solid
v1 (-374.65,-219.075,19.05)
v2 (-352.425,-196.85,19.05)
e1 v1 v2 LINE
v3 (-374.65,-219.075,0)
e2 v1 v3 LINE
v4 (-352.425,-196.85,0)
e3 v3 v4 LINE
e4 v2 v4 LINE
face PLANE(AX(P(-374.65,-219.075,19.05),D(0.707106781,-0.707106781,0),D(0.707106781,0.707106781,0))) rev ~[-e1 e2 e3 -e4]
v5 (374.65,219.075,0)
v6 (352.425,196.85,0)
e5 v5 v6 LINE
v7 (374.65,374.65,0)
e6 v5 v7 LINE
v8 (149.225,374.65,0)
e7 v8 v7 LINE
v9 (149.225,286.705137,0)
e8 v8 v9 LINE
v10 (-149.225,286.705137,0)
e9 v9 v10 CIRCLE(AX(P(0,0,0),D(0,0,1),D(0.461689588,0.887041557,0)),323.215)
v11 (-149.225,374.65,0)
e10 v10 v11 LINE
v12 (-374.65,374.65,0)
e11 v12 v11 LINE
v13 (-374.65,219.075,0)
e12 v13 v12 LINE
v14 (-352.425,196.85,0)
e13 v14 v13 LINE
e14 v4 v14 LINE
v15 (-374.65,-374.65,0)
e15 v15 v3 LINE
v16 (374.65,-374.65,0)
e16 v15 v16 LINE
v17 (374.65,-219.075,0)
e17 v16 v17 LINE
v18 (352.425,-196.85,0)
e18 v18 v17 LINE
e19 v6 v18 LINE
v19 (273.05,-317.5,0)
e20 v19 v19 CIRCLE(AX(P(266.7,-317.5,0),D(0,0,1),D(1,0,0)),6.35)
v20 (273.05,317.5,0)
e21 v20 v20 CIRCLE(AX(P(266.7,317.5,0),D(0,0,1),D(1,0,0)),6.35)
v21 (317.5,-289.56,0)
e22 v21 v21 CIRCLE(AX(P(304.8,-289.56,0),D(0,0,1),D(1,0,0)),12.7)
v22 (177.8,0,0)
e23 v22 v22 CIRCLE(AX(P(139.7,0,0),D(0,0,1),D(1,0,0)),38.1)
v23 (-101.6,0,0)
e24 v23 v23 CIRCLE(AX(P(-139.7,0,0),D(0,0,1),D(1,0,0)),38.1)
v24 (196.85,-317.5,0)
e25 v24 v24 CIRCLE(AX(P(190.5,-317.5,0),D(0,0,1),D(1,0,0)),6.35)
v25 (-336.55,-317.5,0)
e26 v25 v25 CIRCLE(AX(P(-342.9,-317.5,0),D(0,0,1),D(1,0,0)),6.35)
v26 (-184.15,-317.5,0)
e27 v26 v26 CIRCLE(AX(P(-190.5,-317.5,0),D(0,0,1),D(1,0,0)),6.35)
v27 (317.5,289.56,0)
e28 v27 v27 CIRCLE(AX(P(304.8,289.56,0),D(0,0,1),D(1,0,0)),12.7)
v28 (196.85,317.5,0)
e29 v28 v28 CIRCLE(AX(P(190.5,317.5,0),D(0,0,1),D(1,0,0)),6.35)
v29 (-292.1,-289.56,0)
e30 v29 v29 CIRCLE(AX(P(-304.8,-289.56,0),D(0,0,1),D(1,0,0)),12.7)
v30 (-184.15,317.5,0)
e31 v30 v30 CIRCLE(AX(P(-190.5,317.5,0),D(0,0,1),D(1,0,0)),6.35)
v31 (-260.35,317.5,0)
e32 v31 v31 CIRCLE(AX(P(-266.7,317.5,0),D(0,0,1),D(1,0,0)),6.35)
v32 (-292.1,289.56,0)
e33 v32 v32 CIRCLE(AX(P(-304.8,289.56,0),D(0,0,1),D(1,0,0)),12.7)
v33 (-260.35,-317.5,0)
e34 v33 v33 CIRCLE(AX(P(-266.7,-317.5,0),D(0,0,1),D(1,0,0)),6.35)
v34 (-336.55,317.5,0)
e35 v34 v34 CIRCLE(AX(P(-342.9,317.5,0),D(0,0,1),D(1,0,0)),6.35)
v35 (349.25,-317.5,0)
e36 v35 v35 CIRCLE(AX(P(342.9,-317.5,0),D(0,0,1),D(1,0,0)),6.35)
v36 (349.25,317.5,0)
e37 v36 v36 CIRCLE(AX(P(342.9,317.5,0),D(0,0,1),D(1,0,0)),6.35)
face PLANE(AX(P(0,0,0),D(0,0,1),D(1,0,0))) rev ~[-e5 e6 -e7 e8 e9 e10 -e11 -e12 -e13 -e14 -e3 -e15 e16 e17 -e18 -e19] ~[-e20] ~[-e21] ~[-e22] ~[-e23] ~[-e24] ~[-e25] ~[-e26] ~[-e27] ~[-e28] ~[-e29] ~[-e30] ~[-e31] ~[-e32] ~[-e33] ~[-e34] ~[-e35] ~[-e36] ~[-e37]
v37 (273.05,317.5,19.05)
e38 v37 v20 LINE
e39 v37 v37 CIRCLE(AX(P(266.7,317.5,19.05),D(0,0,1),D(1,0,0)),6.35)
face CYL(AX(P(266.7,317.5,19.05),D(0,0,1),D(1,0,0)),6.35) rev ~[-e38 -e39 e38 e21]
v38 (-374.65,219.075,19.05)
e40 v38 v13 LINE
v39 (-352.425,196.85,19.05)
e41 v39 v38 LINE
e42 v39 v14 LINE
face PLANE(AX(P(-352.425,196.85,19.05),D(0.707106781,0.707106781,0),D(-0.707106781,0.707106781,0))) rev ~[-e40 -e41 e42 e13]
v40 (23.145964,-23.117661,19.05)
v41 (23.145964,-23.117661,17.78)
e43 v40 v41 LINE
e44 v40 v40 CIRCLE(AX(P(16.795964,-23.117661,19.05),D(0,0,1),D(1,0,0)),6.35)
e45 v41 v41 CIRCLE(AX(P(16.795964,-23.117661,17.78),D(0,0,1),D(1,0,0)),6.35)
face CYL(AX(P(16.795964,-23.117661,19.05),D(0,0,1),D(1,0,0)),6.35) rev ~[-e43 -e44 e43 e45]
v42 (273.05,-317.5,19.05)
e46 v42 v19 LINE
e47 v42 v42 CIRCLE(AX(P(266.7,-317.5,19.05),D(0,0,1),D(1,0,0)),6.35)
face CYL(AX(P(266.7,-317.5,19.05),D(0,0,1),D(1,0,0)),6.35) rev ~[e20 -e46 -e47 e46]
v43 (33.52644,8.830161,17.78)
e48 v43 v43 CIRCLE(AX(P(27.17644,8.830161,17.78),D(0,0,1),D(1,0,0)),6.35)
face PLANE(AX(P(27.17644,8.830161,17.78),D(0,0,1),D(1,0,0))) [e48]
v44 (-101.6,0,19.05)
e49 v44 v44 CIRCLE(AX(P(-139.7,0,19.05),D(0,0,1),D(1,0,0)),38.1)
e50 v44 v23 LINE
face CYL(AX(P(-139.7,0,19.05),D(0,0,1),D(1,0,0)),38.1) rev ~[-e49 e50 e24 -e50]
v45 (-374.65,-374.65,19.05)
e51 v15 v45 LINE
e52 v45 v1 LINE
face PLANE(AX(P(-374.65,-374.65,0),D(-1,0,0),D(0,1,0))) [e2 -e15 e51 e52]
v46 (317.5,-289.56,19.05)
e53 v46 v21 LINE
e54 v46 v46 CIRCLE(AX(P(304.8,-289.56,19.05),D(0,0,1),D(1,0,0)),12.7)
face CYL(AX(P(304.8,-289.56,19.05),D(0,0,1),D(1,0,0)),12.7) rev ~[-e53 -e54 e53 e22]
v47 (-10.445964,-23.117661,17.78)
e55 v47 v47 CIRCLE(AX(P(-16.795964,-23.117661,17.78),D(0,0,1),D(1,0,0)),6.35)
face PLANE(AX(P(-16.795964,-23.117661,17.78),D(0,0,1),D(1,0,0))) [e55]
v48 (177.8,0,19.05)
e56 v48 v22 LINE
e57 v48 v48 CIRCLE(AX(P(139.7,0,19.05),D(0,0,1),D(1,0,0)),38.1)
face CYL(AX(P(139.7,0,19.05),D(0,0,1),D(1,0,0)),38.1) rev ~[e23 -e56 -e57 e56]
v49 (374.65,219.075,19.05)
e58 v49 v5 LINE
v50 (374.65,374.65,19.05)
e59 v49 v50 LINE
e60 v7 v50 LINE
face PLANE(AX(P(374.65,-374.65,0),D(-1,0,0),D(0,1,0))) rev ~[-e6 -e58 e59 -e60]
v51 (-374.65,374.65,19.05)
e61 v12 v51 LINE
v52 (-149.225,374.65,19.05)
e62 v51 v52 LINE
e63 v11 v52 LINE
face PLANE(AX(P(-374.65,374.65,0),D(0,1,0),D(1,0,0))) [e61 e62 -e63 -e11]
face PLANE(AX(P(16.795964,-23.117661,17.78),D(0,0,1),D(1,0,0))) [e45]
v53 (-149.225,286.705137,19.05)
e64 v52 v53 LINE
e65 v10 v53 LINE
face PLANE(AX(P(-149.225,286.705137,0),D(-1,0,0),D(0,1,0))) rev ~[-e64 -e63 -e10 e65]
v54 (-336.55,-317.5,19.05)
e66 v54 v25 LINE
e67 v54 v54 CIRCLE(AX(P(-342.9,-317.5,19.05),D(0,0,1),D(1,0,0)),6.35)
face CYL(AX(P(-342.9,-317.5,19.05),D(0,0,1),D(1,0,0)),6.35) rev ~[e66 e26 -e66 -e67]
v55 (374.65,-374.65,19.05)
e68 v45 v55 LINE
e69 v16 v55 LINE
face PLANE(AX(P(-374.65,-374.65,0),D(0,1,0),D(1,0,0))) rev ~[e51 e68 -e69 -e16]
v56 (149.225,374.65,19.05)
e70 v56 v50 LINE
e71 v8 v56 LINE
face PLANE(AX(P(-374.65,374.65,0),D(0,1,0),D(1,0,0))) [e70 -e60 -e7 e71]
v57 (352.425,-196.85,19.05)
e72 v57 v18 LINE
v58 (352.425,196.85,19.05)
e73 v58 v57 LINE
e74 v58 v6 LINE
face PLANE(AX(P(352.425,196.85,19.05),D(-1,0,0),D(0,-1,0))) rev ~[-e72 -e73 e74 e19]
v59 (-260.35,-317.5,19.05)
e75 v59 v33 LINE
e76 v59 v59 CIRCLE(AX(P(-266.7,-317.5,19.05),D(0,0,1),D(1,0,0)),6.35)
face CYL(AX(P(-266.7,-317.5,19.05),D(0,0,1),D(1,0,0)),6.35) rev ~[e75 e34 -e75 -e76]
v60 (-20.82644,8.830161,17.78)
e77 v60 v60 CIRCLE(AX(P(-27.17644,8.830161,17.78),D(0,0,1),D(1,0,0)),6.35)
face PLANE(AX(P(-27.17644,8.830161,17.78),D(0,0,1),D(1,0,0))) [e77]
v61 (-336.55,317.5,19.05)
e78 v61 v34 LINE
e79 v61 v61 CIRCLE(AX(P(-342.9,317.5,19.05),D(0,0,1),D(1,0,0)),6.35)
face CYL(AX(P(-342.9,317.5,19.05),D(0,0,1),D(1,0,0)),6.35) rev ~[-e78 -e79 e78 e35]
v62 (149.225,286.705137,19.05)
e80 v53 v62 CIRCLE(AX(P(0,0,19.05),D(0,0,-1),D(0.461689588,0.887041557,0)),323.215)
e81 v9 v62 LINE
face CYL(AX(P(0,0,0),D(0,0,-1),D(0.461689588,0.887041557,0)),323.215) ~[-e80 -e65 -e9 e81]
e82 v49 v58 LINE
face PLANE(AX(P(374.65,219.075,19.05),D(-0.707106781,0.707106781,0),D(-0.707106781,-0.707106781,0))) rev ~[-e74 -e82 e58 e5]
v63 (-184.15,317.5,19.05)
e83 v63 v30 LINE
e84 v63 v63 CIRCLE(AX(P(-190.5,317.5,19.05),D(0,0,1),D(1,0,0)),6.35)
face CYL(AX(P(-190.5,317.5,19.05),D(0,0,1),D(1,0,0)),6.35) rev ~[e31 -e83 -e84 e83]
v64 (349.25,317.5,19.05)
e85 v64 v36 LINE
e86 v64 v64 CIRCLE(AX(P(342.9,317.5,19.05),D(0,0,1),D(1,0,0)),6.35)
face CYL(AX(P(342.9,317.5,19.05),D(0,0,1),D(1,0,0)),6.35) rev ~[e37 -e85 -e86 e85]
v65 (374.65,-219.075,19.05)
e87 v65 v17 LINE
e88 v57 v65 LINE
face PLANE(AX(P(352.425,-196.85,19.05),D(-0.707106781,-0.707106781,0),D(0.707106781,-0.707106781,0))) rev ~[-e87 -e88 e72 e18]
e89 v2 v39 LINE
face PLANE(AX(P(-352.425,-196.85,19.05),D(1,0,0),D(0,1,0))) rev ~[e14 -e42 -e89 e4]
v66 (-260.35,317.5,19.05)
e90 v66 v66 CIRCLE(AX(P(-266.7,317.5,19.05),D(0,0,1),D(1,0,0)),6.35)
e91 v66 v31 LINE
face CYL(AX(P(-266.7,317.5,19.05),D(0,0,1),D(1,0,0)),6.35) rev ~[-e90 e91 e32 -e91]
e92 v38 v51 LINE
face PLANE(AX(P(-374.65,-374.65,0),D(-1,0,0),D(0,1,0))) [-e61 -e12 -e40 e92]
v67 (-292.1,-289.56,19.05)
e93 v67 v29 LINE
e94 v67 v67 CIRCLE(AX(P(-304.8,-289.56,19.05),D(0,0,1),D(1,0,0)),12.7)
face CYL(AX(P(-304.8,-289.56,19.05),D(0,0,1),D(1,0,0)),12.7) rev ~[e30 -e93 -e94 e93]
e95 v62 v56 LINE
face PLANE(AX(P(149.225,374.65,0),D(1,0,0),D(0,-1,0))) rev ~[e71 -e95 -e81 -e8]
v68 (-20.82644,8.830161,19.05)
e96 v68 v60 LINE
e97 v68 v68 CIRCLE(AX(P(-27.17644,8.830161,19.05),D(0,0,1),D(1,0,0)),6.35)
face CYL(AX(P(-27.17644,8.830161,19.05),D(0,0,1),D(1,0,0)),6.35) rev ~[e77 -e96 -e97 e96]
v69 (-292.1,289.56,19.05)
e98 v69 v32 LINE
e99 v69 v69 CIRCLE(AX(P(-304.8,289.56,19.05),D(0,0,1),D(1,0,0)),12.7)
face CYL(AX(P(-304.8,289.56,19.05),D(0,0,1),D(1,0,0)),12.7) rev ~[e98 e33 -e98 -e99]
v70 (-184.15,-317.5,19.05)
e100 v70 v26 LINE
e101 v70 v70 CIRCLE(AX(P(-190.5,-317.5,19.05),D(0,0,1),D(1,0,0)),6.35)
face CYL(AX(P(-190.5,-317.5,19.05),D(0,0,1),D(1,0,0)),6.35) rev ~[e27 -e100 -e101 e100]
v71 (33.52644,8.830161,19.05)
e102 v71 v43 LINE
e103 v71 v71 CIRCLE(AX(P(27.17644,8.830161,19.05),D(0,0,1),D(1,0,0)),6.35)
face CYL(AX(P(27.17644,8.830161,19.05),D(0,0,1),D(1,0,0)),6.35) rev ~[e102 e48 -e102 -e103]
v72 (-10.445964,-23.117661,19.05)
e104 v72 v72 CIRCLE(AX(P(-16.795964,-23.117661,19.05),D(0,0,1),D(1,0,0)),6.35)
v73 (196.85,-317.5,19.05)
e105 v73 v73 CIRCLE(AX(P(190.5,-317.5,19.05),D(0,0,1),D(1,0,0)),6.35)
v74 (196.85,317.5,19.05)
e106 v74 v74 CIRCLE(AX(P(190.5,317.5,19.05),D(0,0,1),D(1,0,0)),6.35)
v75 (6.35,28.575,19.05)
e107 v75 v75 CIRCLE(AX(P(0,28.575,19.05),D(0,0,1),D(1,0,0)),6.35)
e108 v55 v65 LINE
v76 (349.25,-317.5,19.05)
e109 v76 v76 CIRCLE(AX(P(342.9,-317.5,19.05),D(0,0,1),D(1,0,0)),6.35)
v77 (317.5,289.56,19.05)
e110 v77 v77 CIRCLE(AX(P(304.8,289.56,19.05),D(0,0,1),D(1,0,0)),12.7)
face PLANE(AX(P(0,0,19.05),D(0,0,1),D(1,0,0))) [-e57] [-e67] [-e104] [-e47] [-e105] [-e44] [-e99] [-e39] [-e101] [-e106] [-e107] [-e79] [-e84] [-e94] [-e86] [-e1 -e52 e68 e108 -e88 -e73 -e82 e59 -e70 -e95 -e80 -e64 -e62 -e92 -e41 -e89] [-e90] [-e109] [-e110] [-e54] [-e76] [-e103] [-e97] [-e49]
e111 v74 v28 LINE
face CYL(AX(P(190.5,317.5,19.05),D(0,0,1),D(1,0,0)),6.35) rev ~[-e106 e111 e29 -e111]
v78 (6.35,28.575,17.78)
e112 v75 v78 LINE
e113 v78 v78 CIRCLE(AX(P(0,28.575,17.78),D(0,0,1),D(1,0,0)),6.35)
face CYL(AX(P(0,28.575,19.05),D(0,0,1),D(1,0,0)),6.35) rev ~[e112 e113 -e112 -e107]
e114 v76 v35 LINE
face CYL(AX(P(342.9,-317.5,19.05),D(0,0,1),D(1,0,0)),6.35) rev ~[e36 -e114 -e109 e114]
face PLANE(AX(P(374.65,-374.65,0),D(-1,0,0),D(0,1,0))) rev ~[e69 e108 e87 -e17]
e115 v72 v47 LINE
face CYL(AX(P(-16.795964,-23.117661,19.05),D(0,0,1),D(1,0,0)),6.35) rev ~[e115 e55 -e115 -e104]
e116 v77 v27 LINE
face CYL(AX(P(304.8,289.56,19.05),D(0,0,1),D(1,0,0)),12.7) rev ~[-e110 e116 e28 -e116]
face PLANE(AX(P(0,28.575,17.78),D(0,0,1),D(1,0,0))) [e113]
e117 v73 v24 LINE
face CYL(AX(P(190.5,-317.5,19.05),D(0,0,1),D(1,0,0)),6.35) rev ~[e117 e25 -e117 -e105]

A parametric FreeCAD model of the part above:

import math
import FreeCAD as App
import Part
import Sketcher
Q = App.Units.Quantity


def add_polygon(sketch, points):
    """Adds a closed chain of lines whose ends are joined by coincident constraints."""
    first, n = sketch.GeometryCount, len(points)
    for a, b in zip(points, points[1:] + points[:1]):
        sketch.addGeometry(Part.LineSegment(App.Vector(*a, 0), App.Vector(*b, 0)), False)
    for i in range(n):
        sketch.addConstraint(Sketcher.Constraint("Coincident", first + i, 2, first + (i + 1) % n, 1))

doc = App.newDocument("Part")
body = doc.addObject("PartDesign::Body", "Body")

# Sketch on XY plane
sketch1 = doc.addObject("Sketcher::SketchObject", "Sketch")
body.addObject(sketch1)
sketch1.AttachmentSupport = (doc.XY_Plane, [""])
sketch1.MapMode = "FlatFace"
add_polygon(sketch1, [(-375, 375), (-375, -375), (375, -375), (375, 375)])  # lines 0-3
sketch1.addConstraint([
    Sketcher.Constraint("Vertical", 0),
    Sketcher.Constraint("Horizontal", 1),
    Sketcher.Constraint("Vertical", 2),
    Sketcher.Constraint("Horizontal", 3),
    Sketcher.Constraint("Symmetric", 0, 2, 2, 2, -1, 1),
    Sketcher.Constraint("Equal", 3, 0),
    Sketcher.Constraint("DistanceX", 1, 1, 1, 2, Q("29.5 in")),
])
pad1 = doc.addObject("PartDesign::Pad", "Pad")
body.addObject(pad1)
pad1.Profile = sketch1
pad1.Length = Q("0.75 in")

# Sketch on XY plane
sketch2 = doc.addObject("Sketcher::SketchObject", "Sketch001")
body.addObject(sketch2)
sketch2.AttachmentSupport = (doc.XY_Plane, [""])
sketch2.MapMode = "FlatFace"
sketch2.AttachmentOffset = App.Placement(App.Vector(0, 0, 0.75 * 25.4), App.Rotation())
add_polygon(sketch2, [(-352, 197), (-375, 219), (-375, -219), (-352, -197)])  # lines 0-3
add_polygon(sketch2, [(375, -219), (375, 219), (352, 197), (352, -197)])  # lines 4-7
sketch2.addConstraint([
    Sketcher.Constraint("Vertical", 1),
    Sketcher.Constraint("Vertical", 3),
    Sketcher.Constraint("Vertical", 4),
    Sketcher.Constraint("Vertical", 6),
    Sketcher.Constraint("Symmetric", 1, 2, 4, 2, -1, 1),
    Sketcher.Constraint("Symmetric", 2, 2, 5, 2, -1, 1),
    Sketcher.Constraint("Perpendicular", 0, 2),
    Sketcher.Constraint("Perpendicular", 5, 7),
    Sketcher.Constraint("Horizontal", 0, 2, 4, 2),
    Sketcher.Constraint("Horizontal", 3, 2, 5, 2),
    Sketcher.Constraint("Horizontal", 2, 2, 6, 2),
    Sketcher.Constraint("DistanceY", 3, 1, 3, 2, Q("15.5 in")),
    Sketcher.Constraint("DistanceY", 1, 2, 1, 1, Q("17.25 in")),
    Sketcher.Constraint("DistanceX", 0, 2, 4, 2, Q("29.5 in")),
])
pocket1 = doc.addObject("PartDesign::Pocket", "Pocket")
body.addObject(pocket1)
pocket1.Profile = sketch2
pocket1.Length = Q("4.5 in")

# Sketch on XY plane
sketch3 = doc.addObject("Sketcher::SketchObject", "Sketch002")
body.addObject(sketch3)
sketch3.AttachmentSupport = (doc.XY_Plane, [""])
sketch3.MapMode = "FlatFace"
sketch3.AttachmentOffset = App.Placement(App.Vector(0, 0, 0.75 * 25.4), App.Rotation())
sketch3.addGeometry([
    Part.Circle(App.Vector(0, 29, 0), App.Vector(0, 0, 1), 6),  # 0
    Part.Circle(App.Vector(-27, 9, 0), App.Vector(0, 0, 1), 6),  # 1
    Part.Circle(App.Vector(-17, -23, 0), App.Vector(0, 0, 1), 6),  # 2
    Part.Circle(App.Vector(17, -23, 0), App.Vector(0, 0, 1), 6),  # 3
    Part.Circle(App.Vector(27, 9, 0), App.Vector(0, 0, 1), 6),  # 4
], False)
sketch3.addConstraint([
    Sketcher.Constraint("Equal", 0, 1),
    Sketcher.Constraint("Equal", 1, 2),
    Sketcher.Constraint("Equal", 2, 3),
    Sketcher.Constraint("Equal", 3, 4),
    Sketcher.Constraint("Symmetric", 2, 3, 3, 3, -2),
    Sketcher.Constraint("Symmetric", 1, 3, 4, 3, -2),
    Sketcher.Constraint("PointOnObject", 0, 3, -2),
    Sketcher.Constraint("Diameter", 0, Q("0.5 in")),
    Sketcher.Constraint("DistanceY", -1, 1, 0, 3, Q("1.125 in")),
    Sketcher.Constraint("DistanceX", 1, 3, -1, 1, 27.17644),
    Sketcher.Constraint("DistanceY", -1, 1, 1, 3, 8.830161),
    Sketcher.Constraint("DistanceY", 2, 3, -1, 1, 23.117661),
    Sketcher.Constraint("DistanceX", 2, 3, 3, 3, 33.591928),
])
pocket2 = doc.addObject("PartDesign::Pocket", "Pocket001")
body.addObject(pocket2)
pocket2.Profile = sketch3
pocket2.Length = Q("0.05 in")

# Sketch on XY plane
sketch4 = doc.addObject("Sketcher::SketchObject", "Sketch003")
body.addObject(sketch4)
sketch4.AttachmentSupport = (doc.XY_Plane, [""])
sketch4.MapMode = "FlatFace"
sketch4.AttachmentOffset = App.Placement(App.Vector(0, 0, 0.75 * 25.4), App.Rotation())
sketch4.addGeometry([
    Part.Circle(App.Vector(190, -318, 0), App.Vector(0, 0, 1), 6),  # 0
    Part.Circle(App.Vector(267, -318, 0), App.Vector(0, 0, 1), 6),  # 1
    Part.Circle(App.Vector(343, -318, 0), App.Vector(0, 0, 1), 6),  # 2
    Part.Circle(App.Vector(305, -290, 0), App.Vector(0, 0, 1), 13),  # 3
    Part.Circle(App.Vector(305, 290, 0), App.Vector(0, 0, 1), 13),  # 4
    Part.Circle(App.Vector(343, 318, 0), App.Vector(0, 0, 1), 6),  # 5
    Part.Circle(App.Vector(267, 318, 0), App.Vector(0, 0, 1), 6),  # 6
    Part.Circle(App.Vector(190, 318, 0), App.Vector(0, 0, 1), 6),  # 7
    Part.Circle(App.Vector(-305, -290, 0), App.Vector(0, 0, 1), 13),  # 8
    Part.Circle(App.Vector(-343, -318, 0), App.Vector(0, 0, 1), 6),  # 9
    Part.Circle(App.Vector(-267, -318, 0), App.Vector(0, 0, 1), 6),  # 10
    Part.Circle(App.Vector(-190, -318, 0), App.Vector(0, 0, 1), 6),  # 11
    Part.Circle(App.Vector(-190, 318, 0), App.Vector(0, 0, 1), 6),  # 12
    Part.Circle(App.Vector(-267, 318, 0), App.Vector(0, 0, 1), 6),  # 13
    Part.Circle(App.Vector(-343, 318, 0), App.Vector(0, 0, 1), 6),  # 14
    Part.Circle(App.Vector(-305, 290, 0), App.Vector(0, 0, 1), 13),  # 15
    Part.Circle(App.Vector(-140, 0, 0), App.Vector(0, 0, 1), 38),  # 16
    Part.Circle(App.Vector(140, 0, 0), App.Vector(0, 0, 1), 38),  # 17
], False)
sketch4.addConstraint([
    Sketcher.Constraint("Equal", 0, 1),
    Sketcher.Constraint("Equal", 1, 2),
    Sketcher.Constraint("Equal", 3, 4),
    Sketcher.Constraint("Equal", 2, 5),
    Sketcher.Constraint("Equal", 5, 6),
    Sketcher.Constraint("Equal", 6, 7),
    Sketcher.Constraint("Equal", 4, 8),
    Sketcher.Constraint("Equal", 7, 9),
    Sketcher.Constraint("Equal", 9, 10),
    Sketcher.Constraint("Equal", 10, 11),
    Sketcher.Constraint("Equal", 11, 12),
    Sketcher.Constraint("Equal", 12, 13),
    Sketcher.Constraint("Equal", 13, 14),
    Sketcher.Constraint("Equal", 8, 15),
    Sketcher.Constraint("Equal", 16, 17),
    Sketcher.Constraint("Symmetric", 4, 3, 8, 3, -1, 1),
    Sketcher.Constraint("Symmetric", 5, 3, 9, 3, -1, 1),
    Sketcher.Constraint("Symmetric", 6, 3, 10, 3, -1, 1),
    Sketcher.Constraint("Symmetric", 7, 3, 11, 3, -1, 1),
    Sketcher.Constraint("Symmetric", 0, 3, 12, 3, -1, 1),
    Sketcher.Constraint("Symmetric", 1, 3, 13, 3, -1, 1),
    Sketcher.Constraint("Symmetric", 2, 3, 14, 3, -1, 1),
    Sketcher.Constraint("Symmetric", 3, 3, 15, 3, -1, 1),
    Sketcher.Constraint("Symmetric", 16, 3, 17, 3, -1, 1),
    Sketcher.Constraint("Symmetric", 3, 3, 8, 3, -2),
    Sketcher.Constraint("Symmetric", 2, 3, 9, 3, -2),
    Sketcher.Constraint("Symmetric", 1, 3, 10, 3, -2),
    Sketcher.Constraint("Symmetric", 0, 3, 11, 3, -2),
    Sketcher.Constraint("PointOnObject", 16, 3, -1),
    Sketcher.Constraint("Horizontal", 0, 3, 1, 3),
    Sketcher.Constraint("Horizontal", 1, 3, 2, 3),
    Sketcher.Constraint("Diameter", 3, Q("1 in")),
    Sketcher.Constraint("Diameter", 16, Q("3 in")),
    Sketcher.Constraint("Diameter", 0, Q("0.5 in")),
    Sketcher.Constraint("DistanceX", -1, 1, 3, 3, Q("12 in")),
    Sketcher.Constraint("DistanceX", 0, 3, 1, 3, Q("3 in")),
    Sketcher.Constraint("DistanceX", 1, 3, 2, 3, Q("3 in")),
    Sketcher.Constraint("DistanceY", 2, 3, 5, 3, Q("25 in")),
    Sketcher.Constraint("DistanceX", 9, 3, 0, 3, Q("21 in")),
    Sketcher.Constraint("DistanceX", 11, 3, 16, 3, Q("2 in")),
    Sketcher.Constraint("DistanceY", 3, 3, -1, 1, Q("11.4 in")),
])
pocket3 = doc.addObject("PartDesign::Pocket", "Pocket002")
body.addObject(pocket3)
pocket3.Profile = sketch4
pocket3.Length = Q("1 in")

# Sketch on XY plane
sketch5 = doc.addObject("Sketcher::SketchObject", "Sketch004")
body.addObject(sketch5)
sketch5.AttachmentSupport = (doc.XY_Plane, [""])
sketch5.MapMode = "FlatFace"
sketch5.addGeometry([
    Part.LineSegment(App.Vector(-149, 375, 0), App.Vector(149, 375, 0)),
    Part.LineSegment(App.Vector(149, 375, 0), App.Vector(149, 287, 0)),
    Part.ArcOfCircle(Part.Circle(App.Vector(0, 0, 0), App.Vector(0, 0, 1), 323), math.radians(63), math.radians(117)),
    Part.LineSegment(App.Vector(-149, 287, 0), App.Vector(-149, 375, 0)),
], False)
sketch5.addConstraint([
    Sketcher.Constraint("Coincident", 0, 2, 1, 1),
    Sketcher.Constraint("Coincident", 1, 2, 2, 1),
    Sketcher.Constraint("Coincident", 2, 2, 3, 1),
    Sketcher.Constraint("Coincident", 3, 2, 0, 1),
    Sketcher.Constraint("Horizontal", 0),
    Sketcher.Constraint("Vertical", 1),
    Sketcher.Constraint("Vertical", 3),
    Sketcher.Constraint("Coincident", 2, 3, -1, 1),
    Sketcher.Constraint("Horizontal", 1, 2, 2, 2),
    Sketcher.Constraint("Radius", 2, Q("12.725 in")),
    Sketcher.Constraint("DistanceX", 0, 1, 0, 2, Q("11.75 in")),
    Sketcher.Constraint("DistanceY", -1, 1, 0, 2, Q("14.75 in")),
])
pocket4 = doc.addObject("PartDesign::Pocket", "Pocket003")
body.addObject(pocket4)
pocket4.Profile = sketch5
pocket4.Length = Q("1.48 in")
pocket4.Reversed = True

doc.recompute()
